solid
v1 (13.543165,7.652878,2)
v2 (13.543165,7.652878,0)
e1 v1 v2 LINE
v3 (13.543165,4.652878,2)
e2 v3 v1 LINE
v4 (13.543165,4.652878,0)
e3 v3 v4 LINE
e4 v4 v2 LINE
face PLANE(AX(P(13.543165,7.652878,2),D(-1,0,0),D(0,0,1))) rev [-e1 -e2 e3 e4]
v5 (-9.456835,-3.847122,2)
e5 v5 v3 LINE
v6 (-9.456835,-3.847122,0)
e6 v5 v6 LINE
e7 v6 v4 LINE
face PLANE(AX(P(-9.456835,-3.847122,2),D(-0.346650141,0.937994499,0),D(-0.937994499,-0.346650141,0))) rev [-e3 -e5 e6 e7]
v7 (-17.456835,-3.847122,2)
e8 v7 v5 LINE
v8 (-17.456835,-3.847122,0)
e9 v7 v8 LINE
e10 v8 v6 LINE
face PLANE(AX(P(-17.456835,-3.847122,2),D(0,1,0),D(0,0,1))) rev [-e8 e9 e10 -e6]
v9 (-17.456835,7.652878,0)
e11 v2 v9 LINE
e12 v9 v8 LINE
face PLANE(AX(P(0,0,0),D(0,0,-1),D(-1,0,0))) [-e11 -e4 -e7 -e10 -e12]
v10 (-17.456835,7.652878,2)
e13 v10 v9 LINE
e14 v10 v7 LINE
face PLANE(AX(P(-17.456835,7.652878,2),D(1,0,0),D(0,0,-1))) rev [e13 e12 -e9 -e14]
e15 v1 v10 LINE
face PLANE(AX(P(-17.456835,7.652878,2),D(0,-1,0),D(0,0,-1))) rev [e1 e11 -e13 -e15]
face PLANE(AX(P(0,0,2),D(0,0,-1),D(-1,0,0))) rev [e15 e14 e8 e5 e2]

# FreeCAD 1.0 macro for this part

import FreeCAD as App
import Part
import Sketcher
from FreeCAD import Vector


def add_polygon(sketch, points):
    """Adds a closed chain of lines whose ends are joined by coincident constraints."""
    first, n = sketch.GeometryCount, len(points)
    for a, b in zip(points, points[1:] + points[:1]):
        sketch.addGeometry(Part.LineSegment(App.Vector(*a, 0), App.Vector(*b, 0)), False)
    for i in range(n):
        sketch.addConstraint(Sketcher.Constraint("Coincident", first + i, 2, first + (i + 1) % n, 1))

doc = App.newDocument("Part")
body = doc.addObject("PartDesign::Body", "Body")

# Sketch on XY plane
sketch1 = doc.addObject("Sketcher::SketchObject", "Sketch")
body.addObject(sketch1)
sketch1.AttachmentSupport = (doc.XY_Plane, [""])
sketch1.MapMode = "FlatFace"
add_polygon(sketch1, [(-17.5, 7.7), (-17.5, -3.8), (-9.5, -3.8), (13.5, 4.7), (13.5, 7.7)])  # lines 0-4
sketch1.addConstraint([
    Sketcher.Constraint("Vertical", 0),
    Sketcher.Constraint("Horizontal", 1),
    Sketcher.Constraint("Vertical", 3),
    Sketcher.Constraint("Horizontal", 4),
    Sketcher.Constraint("DistanceX", 1, 1, 1, 2, 8.0),
    Sketcher.Constraint("DistanceX", 4, 2, 4, 1, 31.0),
    Sketcher.Constraint("DistanceY", 3, 1, 3, 2, 3.0),
    Sketcher.Constraint("DistanceY", 0, 2, 0, 1, 11.5),
    Sketcher.Constraint("DistanceX", 0, 2, -1, 1, 17.456835),
    Sketcher.Constraint("DistanceY", 0, 2, -1, 1, 3.847122),
])
pad1 = doc.addObject("PartDesign::Pad", "Pad")
body.addObject(pad1)
pad1.Profile = sketch1
pad1.Length = 2

doc.recompute()
